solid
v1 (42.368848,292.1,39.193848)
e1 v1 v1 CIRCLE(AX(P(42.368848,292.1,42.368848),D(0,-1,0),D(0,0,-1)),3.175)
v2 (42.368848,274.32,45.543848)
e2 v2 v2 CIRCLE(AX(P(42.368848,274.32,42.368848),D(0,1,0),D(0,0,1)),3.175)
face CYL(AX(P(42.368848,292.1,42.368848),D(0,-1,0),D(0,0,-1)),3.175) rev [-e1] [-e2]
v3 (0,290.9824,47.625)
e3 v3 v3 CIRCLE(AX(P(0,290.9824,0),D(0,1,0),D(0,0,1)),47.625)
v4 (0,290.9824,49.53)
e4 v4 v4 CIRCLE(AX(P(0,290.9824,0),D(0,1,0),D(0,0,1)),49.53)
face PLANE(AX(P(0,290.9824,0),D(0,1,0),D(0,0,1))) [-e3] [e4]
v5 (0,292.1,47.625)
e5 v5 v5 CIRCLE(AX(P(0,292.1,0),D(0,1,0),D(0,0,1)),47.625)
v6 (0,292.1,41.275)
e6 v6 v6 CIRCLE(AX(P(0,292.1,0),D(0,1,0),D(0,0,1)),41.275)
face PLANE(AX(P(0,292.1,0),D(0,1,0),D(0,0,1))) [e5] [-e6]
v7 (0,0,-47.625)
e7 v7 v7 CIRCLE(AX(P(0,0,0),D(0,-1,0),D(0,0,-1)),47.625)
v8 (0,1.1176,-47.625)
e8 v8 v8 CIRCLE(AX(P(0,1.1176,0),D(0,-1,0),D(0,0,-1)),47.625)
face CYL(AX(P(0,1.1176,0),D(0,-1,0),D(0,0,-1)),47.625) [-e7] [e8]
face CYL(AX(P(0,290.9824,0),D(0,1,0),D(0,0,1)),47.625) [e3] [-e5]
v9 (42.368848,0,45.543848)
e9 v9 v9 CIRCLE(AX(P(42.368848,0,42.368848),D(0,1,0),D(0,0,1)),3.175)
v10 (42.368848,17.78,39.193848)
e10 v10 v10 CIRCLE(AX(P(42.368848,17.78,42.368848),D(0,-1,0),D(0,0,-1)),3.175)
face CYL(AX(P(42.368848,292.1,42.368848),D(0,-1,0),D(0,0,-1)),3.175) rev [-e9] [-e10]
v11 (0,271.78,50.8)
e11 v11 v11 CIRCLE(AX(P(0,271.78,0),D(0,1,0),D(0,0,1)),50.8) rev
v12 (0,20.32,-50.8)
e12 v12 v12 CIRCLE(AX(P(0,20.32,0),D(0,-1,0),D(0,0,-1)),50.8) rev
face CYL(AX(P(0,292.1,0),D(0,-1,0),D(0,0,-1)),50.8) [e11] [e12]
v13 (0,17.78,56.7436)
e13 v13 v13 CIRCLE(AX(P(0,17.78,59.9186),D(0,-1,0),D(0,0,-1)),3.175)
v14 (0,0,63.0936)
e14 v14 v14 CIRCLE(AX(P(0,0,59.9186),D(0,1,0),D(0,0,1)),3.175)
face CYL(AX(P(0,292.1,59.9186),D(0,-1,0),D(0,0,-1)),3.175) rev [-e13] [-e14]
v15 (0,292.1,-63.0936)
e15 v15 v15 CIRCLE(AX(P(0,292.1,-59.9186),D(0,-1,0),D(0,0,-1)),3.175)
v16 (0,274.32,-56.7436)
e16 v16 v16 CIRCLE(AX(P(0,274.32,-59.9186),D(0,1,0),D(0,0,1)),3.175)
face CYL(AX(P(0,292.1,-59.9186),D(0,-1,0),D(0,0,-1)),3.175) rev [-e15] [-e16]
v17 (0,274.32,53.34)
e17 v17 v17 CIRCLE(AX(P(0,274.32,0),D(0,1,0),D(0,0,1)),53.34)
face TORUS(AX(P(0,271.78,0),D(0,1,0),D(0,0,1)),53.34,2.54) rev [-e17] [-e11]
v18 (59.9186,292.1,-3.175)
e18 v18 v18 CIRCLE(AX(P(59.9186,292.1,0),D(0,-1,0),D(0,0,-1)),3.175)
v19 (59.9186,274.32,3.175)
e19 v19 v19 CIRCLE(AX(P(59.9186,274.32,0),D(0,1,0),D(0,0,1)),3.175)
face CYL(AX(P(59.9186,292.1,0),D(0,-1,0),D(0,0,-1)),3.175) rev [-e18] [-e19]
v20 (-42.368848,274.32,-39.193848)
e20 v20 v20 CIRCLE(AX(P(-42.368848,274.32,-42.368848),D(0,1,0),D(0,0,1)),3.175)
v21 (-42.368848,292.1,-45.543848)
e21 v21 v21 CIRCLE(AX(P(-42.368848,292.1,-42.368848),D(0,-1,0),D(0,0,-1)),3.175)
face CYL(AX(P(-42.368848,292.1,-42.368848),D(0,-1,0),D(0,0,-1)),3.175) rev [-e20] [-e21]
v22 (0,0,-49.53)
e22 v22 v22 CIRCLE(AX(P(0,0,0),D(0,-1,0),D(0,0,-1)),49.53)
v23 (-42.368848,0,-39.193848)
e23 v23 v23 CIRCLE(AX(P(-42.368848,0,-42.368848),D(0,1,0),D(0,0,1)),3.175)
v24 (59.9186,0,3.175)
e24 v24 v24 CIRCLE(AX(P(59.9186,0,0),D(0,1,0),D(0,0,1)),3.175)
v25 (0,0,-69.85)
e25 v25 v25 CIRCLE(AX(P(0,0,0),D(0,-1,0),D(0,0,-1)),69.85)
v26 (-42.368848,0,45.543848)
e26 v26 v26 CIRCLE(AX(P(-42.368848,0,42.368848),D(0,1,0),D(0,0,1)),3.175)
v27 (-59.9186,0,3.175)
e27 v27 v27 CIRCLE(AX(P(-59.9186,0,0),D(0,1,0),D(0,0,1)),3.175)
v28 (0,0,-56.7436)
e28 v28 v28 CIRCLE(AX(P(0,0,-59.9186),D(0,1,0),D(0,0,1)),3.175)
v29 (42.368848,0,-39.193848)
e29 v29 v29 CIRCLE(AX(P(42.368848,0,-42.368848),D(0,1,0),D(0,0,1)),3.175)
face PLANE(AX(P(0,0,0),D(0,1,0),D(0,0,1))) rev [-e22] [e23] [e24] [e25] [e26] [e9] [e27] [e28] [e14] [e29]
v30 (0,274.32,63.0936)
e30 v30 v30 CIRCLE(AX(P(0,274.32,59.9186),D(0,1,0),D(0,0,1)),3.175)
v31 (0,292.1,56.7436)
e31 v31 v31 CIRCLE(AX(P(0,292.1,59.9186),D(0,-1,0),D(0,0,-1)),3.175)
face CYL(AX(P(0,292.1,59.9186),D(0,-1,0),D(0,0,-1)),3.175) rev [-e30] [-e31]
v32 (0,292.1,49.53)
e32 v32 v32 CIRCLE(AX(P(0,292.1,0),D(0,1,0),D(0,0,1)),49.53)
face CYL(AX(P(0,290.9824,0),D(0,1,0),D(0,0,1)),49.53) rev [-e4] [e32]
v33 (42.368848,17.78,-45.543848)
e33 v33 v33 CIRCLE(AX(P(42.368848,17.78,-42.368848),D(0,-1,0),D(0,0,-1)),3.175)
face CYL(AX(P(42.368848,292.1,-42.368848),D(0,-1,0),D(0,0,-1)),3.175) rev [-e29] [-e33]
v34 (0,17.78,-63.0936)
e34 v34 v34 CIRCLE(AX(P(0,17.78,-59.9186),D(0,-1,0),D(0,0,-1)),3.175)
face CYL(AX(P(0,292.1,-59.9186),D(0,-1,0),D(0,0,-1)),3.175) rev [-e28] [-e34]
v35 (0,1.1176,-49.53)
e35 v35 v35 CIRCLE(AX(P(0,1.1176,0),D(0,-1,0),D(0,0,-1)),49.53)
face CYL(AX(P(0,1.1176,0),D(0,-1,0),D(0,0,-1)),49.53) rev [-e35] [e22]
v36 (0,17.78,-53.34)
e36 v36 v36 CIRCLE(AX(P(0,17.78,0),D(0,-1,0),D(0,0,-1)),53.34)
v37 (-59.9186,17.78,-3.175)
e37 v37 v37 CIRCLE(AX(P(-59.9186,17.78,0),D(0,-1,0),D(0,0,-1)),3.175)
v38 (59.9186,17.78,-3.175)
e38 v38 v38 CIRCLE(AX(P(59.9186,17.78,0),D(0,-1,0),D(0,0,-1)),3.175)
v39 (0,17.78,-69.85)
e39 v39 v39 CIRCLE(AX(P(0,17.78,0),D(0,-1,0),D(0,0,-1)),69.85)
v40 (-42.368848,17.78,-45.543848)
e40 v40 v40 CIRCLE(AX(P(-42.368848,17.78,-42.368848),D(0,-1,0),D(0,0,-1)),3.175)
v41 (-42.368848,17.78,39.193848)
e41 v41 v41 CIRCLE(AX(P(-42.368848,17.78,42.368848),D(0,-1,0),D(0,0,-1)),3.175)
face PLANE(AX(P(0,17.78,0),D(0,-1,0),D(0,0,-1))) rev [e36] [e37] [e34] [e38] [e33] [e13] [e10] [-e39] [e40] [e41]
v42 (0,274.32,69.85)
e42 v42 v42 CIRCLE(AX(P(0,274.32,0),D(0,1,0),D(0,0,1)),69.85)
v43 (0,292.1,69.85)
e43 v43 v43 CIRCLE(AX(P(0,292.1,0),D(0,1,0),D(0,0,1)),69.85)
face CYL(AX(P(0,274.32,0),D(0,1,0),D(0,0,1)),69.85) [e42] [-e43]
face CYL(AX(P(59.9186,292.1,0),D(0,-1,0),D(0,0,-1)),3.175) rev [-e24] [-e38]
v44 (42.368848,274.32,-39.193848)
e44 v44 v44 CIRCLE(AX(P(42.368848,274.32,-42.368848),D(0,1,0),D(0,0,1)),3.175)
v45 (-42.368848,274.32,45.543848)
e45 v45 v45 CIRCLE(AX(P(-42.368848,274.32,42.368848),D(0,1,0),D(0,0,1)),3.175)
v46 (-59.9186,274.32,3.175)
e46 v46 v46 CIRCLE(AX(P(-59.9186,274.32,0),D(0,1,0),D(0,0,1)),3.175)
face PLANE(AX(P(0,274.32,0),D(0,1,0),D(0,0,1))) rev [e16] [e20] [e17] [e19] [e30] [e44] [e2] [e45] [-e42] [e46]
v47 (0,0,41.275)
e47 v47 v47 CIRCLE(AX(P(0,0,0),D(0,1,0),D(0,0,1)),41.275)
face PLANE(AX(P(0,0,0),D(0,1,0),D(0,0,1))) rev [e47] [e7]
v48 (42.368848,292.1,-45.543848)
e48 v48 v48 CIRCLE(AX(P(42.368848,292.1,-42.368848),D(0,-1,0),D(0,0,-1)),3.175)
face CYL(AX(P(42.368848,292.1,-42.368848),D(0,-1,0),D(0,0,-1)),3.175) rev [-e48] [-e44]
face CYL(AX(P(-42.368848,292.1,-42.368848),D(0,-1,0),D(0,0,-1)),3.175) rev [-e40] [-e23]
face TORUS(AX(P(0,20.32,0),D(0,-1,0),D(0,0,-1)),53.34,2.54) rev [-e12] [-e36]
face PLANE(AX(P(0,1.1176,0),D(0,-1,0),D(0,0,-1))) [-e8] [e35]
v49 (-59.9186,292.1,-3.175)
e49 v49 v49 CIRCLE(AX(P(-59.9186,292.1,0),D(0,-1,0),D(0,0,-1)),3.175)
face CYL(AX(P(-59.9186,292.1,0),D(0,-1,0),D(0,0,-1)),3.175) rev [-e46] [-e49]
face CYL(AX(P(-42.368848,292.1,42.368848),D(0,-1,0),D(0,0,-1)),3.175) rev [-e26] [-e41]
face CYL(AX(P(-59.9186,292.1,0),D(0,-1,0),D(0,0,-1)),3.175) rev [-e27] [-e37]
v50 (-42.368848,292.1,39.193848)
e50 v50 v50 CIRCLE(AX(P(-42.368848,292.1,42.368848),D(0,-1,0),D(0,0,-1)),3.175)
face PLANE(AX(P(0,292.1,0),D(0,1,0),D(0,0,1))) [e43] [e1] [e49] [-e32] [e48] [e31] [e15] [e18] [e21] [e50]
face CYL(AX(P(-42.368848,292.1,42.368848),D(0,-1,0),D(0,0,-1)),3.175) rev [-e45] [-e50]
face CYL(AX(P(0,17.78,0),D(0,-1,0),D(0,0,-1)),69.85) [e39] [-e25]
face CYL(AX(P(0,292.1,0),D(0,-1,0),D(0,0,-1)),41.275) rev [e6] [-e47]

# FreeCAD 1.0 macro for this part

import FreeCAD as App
import Part
import Sketcher
Q = App.Units.Quantity


def edges_at(feature, points):
    """Names of the edges that pass closest to the given points."""
    edges = feature.Shape.Edges
    near = lambda p: min(range(len(edges)), key=lambda i: edges[i].distToShape(Part.Vertex(*p))[0])
    return sorted({f"Edge{near(p) + 1}" for p in points})

doc = App.newDocument("Part")
params = doc.addObject("Spreadsheet::Sheet", "Params")
for row, (alias, value) in enumerate([
    ("sketch1_diameter", "4 in"),
    ("sketch1_diameter2", "3.25 in"),
    ("pad1_length", "11.5 in"),
    ("sketch2_diameter", "5.5 in"),
    ("sketch2_diameter2", "3.25 in"),
    ("pad2_length", "0.7 in"),
    ("sketch3_diameter", "5.5 in"),
    ("sketch3_diameter2", "3.25 in"),
    ("pad3_length", "0.7 in"),
    ("sketch4_diameter", "3.9 in"),
    ("sketch4_diameter2", "3.75 in"),
    ("pocket1_length", "0.044 in"),
    ("sketch5_diameter", "3.9 in"),
    ("sketch5_diameter2", "3.75 in"),
    ("pocket2_length", "0.044 in"),
    ("sketch6_diameter", "0.25 in"),
    ("fillet_radius", "0.1 in"),
], start=1):
    params.set(f"A{row}", alias)
    params.set(f"B{row}", "=" + value)
    params.setAlias(f"B{row}", alias)

body = doc.addObject("PartDesign::Body", "Body")

sketch1 = body.newObject("Sketcher::SketchObject", "Sketch")
sketch1.AttachmentSupport = (doc.getObject("XZ_Plane"), [""])
sketch1.MapMode = "FlatFace"
sketch1.addGeometry(Part.Circle(App.Vector(0, 0, 0), App.Vector(0, 0, 1), 51), False)
sketch1.addGeometry(Part.Circle(App.Vector(0, 0, 0), App.Vector(0, 0, 1), 41), False)
sketch1.addConstraint(Sketcher.Constraint("Coincident", 0, 3, -1, 1))
sketch1.addConstraint(Sketcher.Constraint("Coincident", 1, 3, -1, 1))
sketch1.addConstraint(Sketcher.Constraint("Diameter", 0, Q("4 in")))
sketch1.addConstraint(Sketcher.Constraint("Diameter", 1, Q("3.25 in")))
sketch1.setExpression("Constraints[2]", "Params.sketch1_diameter")
sketch1.setExpression("Constraints[3]", "Params.sketch1_diameter2")
pad1 = body.newObject("PartDesign::Pad", "Pad")
pad1.Profile = sketch1
pad1.setExpression("Length", "Params.pad1_length")
pad1.Reversed = True

sketch2 = body.newObject("Sketcher::SketchObject", "Sketch001")
sketch2.AttachmentSupport = (doc.getObject("XZ_Plane"), [""])
sketch2.MapMode = "FlatFace"
sketch2.addGeometry(Part.Circle(App.Vector(0, 0, 0), App.Vector(0, 0, 1), 70), False)
sketch2.addGeometry(Part.Circle(App.Vector(0, 0, 0), App.Vector(0, 0, 1), 41), False)
sketch2.addConstraint(Sketcher.Constraint("Coincident", 0, 3, -1, 1))
sketch2.addConstraint(Sketcher.Constraint("Coincident", 1, 3, -1, 1))
sketch2.addConstraint(Sketcher.Constraint("Diameter", 0, Q("5.5 in")))
sketch2.addConstraint(Sketcher.Constraint("Diameter", 1, Q("3.25 in")))
sketch2.setExpression("Constraints[2]", "Params.sketch2_diameter")
sketch2.setExpression("Constraints[3]", "Params.sketch2_diameter2")
pad2 = body.newObject("PartDesign::Pad", "Pad001")
pad2.Profile = sketch2
pad2.setExpression("Length", "Params.pad2_length")
pad2.Reversed = True

sketch3 = body.newObject("Sketcher::SketchObject", "Sketch002")
sketch3.AttachmentSupport = (doc.getObject("XZ_Plane"), [""])
sketch3.MapMode = "FlatFace"
sketch3.AttachmentOffset = App.Placement(App.Vector(0, 0, -11.5 * 25.4), App.Rotation())
sketch3.addGeometry(Part.Circle(App.Vector(0, 0, 0), App.Vector(0, 0, 1), 70), False)
sketch3.addGeometry(Part.Circle(App.Vector(0, 0, 0), App.Vector(0, 0, 1), 41), False)
sketch3.addConstraint(Sketcher.Constraint("Coincident", 0, 3, -1, 1))
sketch3.addConstraint(Sketcher.Constraint("Coincident", 1, 3, -1, 1))
sketch3.addConstraint(Sketcher.Constraint("Diameter", 0, Q("5.5 in")))
sketch3.addConstraint(Sketcher.Constraint("Diameter", 1, Q("3.25 in")))
sketch3.setExpression("Constraints[2]", "Params.sketch3_diameter")
sketch3.setExpression("Constraints[3]", "Params.sketch3_diameter2")
pad3 = body.newObject("PartDesign::Pad", "Pad002")
pad3.Profile = sketch3
pad3.setExpression("Length", "Params.pad3_length")

sketch4 = body.newObject("Sketcher::SketchObject", "Sketch003")
sketch4.AttachmentSupport = (doc.getObject("XZ_Plane"), [""])
sketch4.MapMode = "FlatFace"
sketch4.addGeometry(Part.Circle(App.Vector(0, 0, 0), App.Vector(0, 0, 1), 50), False)
sketch4.addGeometry(Part.Circle(App.Vector(0, 0, 0), App.Vector(0, 0, 1), 48), False)
sketch4.addConstraint(Sketcher.Constraint("Coincident", 0, 3, -1, 1))
sketch4.addConstraint(Sketcher.Constraint("Coincident", 1, 3, -1, 1))
sketch4.addConstraint(Sketcher.Constraint("Diameter", 0, Q("3.9 in")))
sketch4.addConstraint(Sketcher.Constraint("Diameter", 1, Q("3.75 in")))
sketch4.setExpression("Constraints[2]", "Params.sketch4_diameter")
sketch4.setExpression("Constraints[3]", "Params.sketch4_diameter2")
pocket1 = body.newObject("PartDesign::Pocket", "Pocket")
pocket1.Profile = sketch4
pocket1.setExpression("Length", "Params.pocket1_length")

sketch5 = body.newObject("Sketcher::SketchObject", "Sketch004")
sketch5.AttachmentSupport = (doc.getObject("XZ_Plane"), [""])
sketch5.MapMode = "FlatFace"
sketch5.AttachmentOffset = App.Placement(App.Vector(0, 0, -11.5 * 25.4), App.Rotation())
sketch5.addGeometry(Part.Circle(App.Vector(0, 0, 0), App.Vector(0, 0, 1), 50), False)
sketch5.addGeometry(Part.Circle(App.Vector(0, 0, 0), App.Vector(0, 0, 1), 48), False)
sketch5.addConstraint(Sketcher.Constraint("Coincident", 0, 3, -1, 1))
sketch5.addConstraint(Sketcher.Constraint("Coincident", 1, 3, -1, 1))
sketch5.addConstraint(Sketcher.Constraint("Diameter", 0, Q("3.9 in")))
sketch5.addConstraint(Sketcher.Constraint("Diameter", 1, Q("3.75 in")))
sketch5.setExpression("Constraints[2]", "Params.sketch5_diameter")
sketch5.setExpression("Constraints[3]", "Params.sketch5_diameter2")
pocket2 = body.newObject("PartDesign::Pocket", "Pocket001")
pocket2.Profile = sketch5
pocket2.setExpression("Length", "Params.pocket2_length")
pocket2.Reversed = True

sketch6 = body.newObject("Sketcher::SketchObject", "Sketch005")
sketch6.AttachmentSupport = (doc.getObject("XZ_Plane"), [""])
sketch6.MapMode = "FlatFace"
sketch6.addGeometry(Part.Circle(App.Vector(-59.9, 0, 0), App.Vector(0, 0, 1), 3.2), False)
sketch6.addGeometry(Part.Circle(App.Vector(-42.4, 42.4, 0), App.Vector(0, 0, 1), 3.2), False)
sketch6.addGeometry(Part.Circle(App.Vector(0, 59.9, 0), App.Vector(0, 0, 1), 3.2), False)
sketch6.addGeometry(Part.Circle(App.Vector(42.4, 42.4, 0), App.Vector(0, 0, 1), 3.2), False)
sketch6.addGeometry(Part.Circle(App.Vector(59.9, 0, 0), App.Vector(0, 0, 1), 3.2), False)
sketch6.addGeometry(Part.Circle(App.Vector(42.4, -42.4, 0), App.Vector(0, 0, 1), 3.2), False)
sketch6.addGeometry(Part.Circle(App.Vector(0, -59.9, 0), App.Vector(0, 0, 1), 3.2), False)
sketch6.addGeometry(Part.Circle(App.Vector(-42.4, -42.4, 0), App.Vector(0, 0, 1), 3.2), False)
sketch6.addConstraint(Sketcher.Constraint("Equal", 0, 1))
sketch6.addConstraint(Sketcher.Constraint("Equal", 1, 2))
sketch6.addConstraint(Sketcher.Constraint("Equal", 2, 3))
sketch6.addConstraint(Sketcher.Constraint("Equal", 3, 4))
sketch6.addConstraint(Sketcher.Constraint("Equal", 4, 5))
sketch6.addConstraint(Sketcher.Constraint("Equal", 5, 6))
sketch6.addConstraint(Sketcher.Constraint("Equal", 6, 7))
sketch6.addConstraint(Sketcher.Constraint("Symmetric", 0, 3, 4, 3, -1, 1))
sketch6.addConstraint(Sketcher.Constraint("Symmetric", 1, 3, 5, 3, -1, 1))
sketch6.addConstraint(Sketcher.Constraint("Symmetric", 2, 3, 6, 3, -1, 1))
sketch6.addConstraint(Sketcher.Constraint("Symmetric", 3, 3, 7, 3, -1, 1))
sketch6.addConstraint(Sketcher.Constraint("Symmetric", 1, 3, 3, 3, -2))
sketch6.addConstraint(Sketcher.Constraint("PointOnObject", 0, 3, -1))
sketch6.addConstraint(Sketcher.Constraint("PointOnObject", 2, 3, -2))
sketch6.addConstraint(Sketcher.Constraint("Diameter", 0, Q("0.25 in")))
sketch6.addConstraint(Sketcher.Constraint("DistanceX", 0, 3, -1, 1, Q("2.359 in")))
sketch6.addConstraint(Sketcher.Constraint("DistanceY", -1, 1, 2, 3, Q("2.359 in")))
sketch6.addConstraint(Sketcher.Constraint("DistanceX", 1, 3, -1, 1, Q("42.368848 mm")))
sketch6.addConstraint(Sketcher.Constraint("DistanceY", -1, 1, 1, 3, Q("42.368848 mm")))
sketch6.setExpression("Constraints[14]", "Params.sketch6_diameter")
pocket3 = body.newObject("PartDesign::Pocket", "Pocket002")
pocket3.Profile = sketch6
pocket3.Type = "ThroughAll"
pocket3.Midplane = True
doc.recompute()

fillet = body.newObject("PartDesign::Fillet", "Fillet")
fillet.Base = (pocket3, edges_at(pocket3, [(-50.8, 17.78, 0), (-50.8, 274.32, 0)]))
fillet.setExpression("Radius", "Params.fillet_radius")

doc.recompute()
